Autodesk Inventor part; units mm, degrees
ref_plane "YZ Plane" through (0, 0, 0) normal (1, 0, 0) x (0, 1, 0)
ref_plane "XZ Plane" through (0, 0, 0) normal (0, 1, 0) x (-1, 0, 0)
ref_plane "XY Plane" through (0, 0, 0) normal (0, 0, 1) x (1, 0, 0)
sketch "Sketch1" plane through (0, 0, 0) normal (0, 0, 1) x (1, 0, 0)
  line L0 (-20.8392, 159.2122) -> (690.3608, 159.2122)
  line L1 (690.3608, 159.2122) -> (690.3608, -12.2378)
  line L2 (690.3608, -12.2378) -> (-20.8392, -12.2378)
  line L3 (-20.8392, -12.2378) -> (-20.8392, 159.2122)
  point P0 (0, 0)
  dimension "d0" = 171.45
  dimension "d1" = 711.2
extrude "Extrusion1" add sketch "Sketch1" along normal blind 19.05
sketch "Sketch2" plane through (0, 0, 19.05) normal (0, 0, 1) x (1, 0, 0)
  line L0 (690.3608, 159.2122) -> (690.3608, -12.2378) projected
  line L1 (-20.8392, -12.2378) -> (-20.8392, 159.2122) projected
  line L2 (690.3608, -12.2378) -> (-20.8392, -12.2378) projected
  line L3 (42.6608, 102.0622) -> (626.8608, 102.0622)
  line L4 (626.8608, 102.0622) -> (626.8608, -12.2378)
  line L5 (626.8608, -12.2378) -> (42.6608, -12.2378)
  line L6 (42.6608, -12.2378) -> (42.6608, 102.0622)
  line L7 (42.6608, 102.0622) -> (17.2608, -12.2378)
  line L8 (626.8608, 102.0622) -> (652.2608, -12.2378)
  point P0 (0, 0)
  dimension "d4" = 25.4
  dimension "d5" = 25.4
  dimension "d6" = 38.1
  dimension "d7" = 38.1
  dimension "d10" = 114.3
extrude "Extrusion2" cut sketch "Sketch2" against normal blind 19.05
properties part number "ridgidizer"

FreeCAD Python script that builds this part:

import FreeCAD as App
import Part
import Sketcher
Q = App.Units.Quantity

doc = App.newDocument("Part")
body = doc.addObject("PartDesign::Body", "Body")

# Sketch on XY plane
sketch1 = body.newObject("Sketcher::SketchObject", "Sketch")
sketch1.AttachmentSupport = (doc.getObject("XY_Plane"), [""])
sketch1.MapMode = "FlatFace"
sketch1.addGeometry([
    Part.LineSegment(App.Vector(690, 159, 0), App.Vector(-21, 159, 0)),
    Part.LineSegment(App.Vector(-21, 159, 0), App.Vector(-21, -12, 0)),
    Part.LineSegment(App.Vector(-21, -12, 0), App.Vector(690, -12, 0)),
    Part.LineSegment(App.Vector(690, -12, 0), App.Vector(690, 159, 0)),
], False)
sketch1.addConstraint([
    Sketcher.Constraint("Coincident", 0, 2, 1, 1),
    Sketcher.Constraint("Coincident", 1, 2, 2, 1),
    Sketcher.Constraint("Coincident", 2, 2, 3, 1),
    Sketcher.Constraint("Coincident", 3, 2, 0, 1),
    Sketcher.Constraint("Horizontal", 0),
    Sketcher.Constraint("Vertical", 1),
    Sketcher.Constraint("Horizontal", 2),
    Sketcher.Constraint("Vertical", 3),
    Sketcher.Constraint("DistanceX", 0, 2, 0, 1, Q("28 in")),
    Sketcher.Constraint("DistanceY", 1, 2, 1, 1, Q("6.75 in")),
    Sketcher.Constraint("DistanceY", -1, 1, 0, 2, Q("6.2682 in")),
    Sketcher.Constraint("DistanceX", 0, 2, -1, 1, 20.8392),
])
pad1 = body.newObject("PartDesign::Pad", "Pad")
pad1.Profile = sketch1
pad1.Length = Q("0.75 in")

# Sketch on XY plane
sketch2 = body.newObject("Sketcher::SketchObject", "Sketch001")
sketch2.AttachmentSupport = (doc.getObject("XY_Plane"), [""])
sketch2.MapMode = "FlatFace"
sketch2.AttachmentOffset = App.Placement(App.Vector(0, 0, 0.75 * 25.4), App.Rotation())
sketch2.addGeometry([
    Part.LineSegment(App.Vector(652, -12, 0), App.Vector(627, 102, 0)),
    Part.LineSegment(App.Vector(627, 102, 0), App.Vector(43, 102, 0)),
    Part.LineSegment(App.Vector(43, 102, 0), App.Vector(17, -12, 0)),
    Part.LineSegment(App.Vector(17, -12, 0), App.Vector(652, -12, 0)),
], False)
sketch2.addConstraint([
    Sketcher.Constraint("Coincident", 0, 2, 1, 1),
    Sketcher.Constraint("Coincident", 1, 2, 2, 1),
    Sketcher.Constraint("Coincident", 2, 2, 3, 1),
    Sketcher.Constraint("Coincident", 3, 2, 0, 1),
    Sketcher.Constraint("Horizontal", 1),
    Sketcher.Constraint("Horizontal", 3),
    Sketcher.Constraint("Equal", 0, 2),
    Sketcher.Constraint("DistanceX", 2, 2, 1, 2, Q("1 in")),
    Sketcher.Constraint("DistanceY", 2, 2, 1, 2, Q("4.5 in")),
    Sketcher.Constraint("DistanceX", 1, 2, 1, 1, Q("23 in")),
    Sketcher.Constraint("DistanceY", -1, 1, 0, 2, Q("4.0182 in")),
    Sketcher.Constraint("DistanceX", -1, 1, 0, 2, 626.8608),
])
pocket1 = body.newObject("PartDesign::Pocket", "Pocket")
pocket1.Profile = sketch2
pocket1.Length = Q("0.75 in")

doc.recompute()
